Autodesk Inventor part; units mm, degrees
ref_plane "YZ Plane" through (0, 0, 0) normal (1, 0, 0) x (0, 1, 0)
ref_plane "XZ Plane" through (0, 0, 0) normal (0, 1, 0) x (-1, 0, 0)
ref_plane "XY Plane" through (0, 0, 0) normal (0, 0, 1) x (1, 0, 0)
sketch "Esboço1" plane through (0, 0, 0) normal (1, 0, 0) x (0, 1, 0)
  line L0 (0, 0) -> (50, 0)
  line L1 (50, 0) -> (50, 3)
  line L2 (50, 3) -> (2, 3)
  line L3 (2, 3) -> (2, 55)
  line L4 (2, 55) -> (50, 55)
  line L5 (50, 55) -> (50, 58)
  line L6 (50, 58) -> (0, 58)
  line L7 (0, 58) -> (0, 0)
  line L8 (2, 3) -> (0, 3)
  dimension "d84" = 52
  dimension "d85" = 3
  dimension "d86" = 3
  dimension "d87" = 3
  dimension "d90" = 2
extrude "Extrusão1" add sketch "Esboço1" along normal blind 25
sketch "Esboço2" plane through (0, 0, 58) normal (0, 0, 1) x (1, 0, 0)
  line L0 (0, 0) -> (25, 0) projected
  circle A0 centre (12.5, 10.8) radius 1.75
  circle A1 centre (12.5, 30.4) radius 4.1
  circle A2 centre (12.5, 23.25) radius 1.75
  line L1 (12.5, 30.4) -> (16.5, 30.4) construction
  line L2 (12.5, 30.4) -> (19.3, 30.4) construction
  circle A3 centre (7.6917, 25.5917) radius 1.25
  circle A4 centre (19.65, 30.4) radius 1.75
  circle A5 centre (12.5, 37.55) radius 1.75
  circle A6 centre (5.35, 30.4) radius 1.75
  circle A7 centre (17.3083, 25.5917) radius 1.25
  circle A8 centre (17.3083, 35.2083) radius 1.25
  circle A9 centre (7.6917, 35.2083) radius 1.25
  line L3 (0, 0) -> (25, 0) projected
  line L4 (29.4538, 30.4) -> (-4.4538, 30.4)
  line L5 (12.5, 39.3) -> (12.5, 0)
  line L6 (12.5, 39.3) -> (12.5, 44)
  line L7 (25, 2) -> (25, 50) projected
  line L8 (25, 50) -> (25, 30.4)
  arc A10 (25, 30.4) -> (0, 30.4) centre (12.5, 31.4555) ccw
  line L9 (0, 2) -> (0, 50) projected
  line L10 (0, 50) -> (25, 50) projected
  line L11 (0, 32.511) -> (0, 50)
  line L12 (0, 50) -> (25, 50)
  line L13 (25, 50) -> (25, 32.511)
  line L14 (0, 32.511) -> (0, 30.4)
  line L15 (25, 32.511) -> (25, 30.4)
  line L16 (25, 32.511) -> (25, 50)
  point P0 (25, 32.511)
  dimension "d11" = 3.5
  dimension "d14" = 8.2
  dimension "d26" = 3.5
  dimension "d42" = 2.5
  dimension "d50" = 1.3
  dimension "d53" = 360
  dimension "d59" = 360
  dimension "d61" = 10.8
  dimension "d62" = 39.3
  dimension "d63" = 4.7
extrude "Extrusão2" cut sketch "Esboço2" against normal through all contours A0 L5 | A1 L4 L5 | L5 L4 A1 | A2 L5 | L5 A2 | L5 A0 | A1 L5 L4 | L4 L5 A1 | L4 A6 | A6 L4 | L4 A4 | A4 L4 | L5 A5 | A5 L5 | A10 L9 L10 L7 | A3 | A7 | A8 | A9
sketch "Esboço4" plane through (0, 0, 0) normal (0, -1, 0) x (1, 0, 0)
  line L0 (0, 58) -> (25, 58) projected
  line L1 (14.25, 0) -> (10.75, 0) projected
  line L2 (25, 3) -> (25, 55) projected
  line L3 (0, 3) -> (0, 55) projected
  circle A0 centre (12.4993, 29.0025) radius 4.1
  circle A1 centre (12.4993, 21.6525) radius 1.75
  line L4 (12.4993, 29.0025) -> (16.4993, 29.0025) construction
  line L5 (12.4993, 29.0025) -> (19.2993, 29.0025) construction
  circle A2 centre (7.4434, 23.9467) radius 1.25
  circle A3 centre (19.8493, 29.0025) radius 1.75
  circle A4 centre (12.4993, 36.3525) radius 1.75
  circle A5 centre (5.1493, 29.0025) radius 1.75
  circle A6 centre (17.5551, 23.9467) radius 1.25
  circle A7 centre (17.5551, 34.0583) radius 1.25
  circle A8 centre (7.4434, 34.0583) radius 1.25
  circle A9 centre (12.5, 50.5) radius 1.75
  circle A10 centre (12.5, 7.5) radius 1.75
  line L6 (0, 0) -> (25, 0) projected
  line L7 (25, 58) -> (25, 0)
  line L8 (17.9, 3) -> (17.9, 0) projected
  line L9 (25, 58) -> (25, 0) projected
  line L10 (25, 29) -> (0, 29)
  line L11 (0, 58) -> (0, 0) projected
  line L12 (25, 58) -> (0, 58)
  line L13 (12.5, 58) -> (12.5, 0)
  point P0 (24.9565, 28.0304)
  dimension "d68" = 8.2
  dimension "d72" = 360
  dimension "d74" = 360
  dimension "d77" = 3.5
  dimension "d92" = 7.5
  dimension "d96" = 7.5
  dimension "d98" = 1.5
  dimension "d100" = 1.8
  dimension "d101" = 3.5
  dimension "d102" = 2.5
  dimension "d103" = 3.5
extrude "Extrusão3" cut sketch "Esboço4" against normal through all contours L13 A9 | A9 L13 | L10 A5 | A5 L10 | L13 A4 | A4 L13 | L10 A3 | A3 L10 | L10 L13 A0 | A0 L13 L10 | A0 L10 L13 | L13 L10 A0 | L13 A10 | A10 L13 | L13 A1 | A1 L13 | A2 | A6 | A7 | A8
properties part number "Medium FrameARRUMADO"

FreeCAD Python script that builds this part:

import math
import FreeCAD as App
import Part
import Sketcher

V = App.Vector
Q = App.Units.Quantity


def add_polygon(sketch, points):
    """Adds a closed chain of lines whose ends are joined by coincident constraints."""
    first, n = sketch.GeometryCount, len(points)
    for a, b in zip(points, points[1:] + points[:1]):
        sketch.addGeometry(Part.LineSegment(App.Vector(*a, 0), App.Vector(*b, 0)), False)
    for i in range(n):
        sketch.addConstraint(Sketcher.Constraint("Coincident", first + i, 2, first + (i + 1) % n, 1))

doc = App.newDocument("Part")
body = doc.addObject("PartDesign::Body", "Body")

sketch1 = body.newObject("Sketcher::SketchObject", "Sketch")
sketch1.AttachmentSupport = (doc.getObject("YZ_Plane"), [""])
sketch1.MapMode = "FlatFace"
add_polygon(sketch1, [(0, 0), (50, 0), (50, 3), (2, 3), (2, 55), (50, 55), (50, 58), (0, 58)])
sketch1.addConstraint([
    Sketcher.Constraint("Horizontal", 0),
    Sketcher.Constraint("Vertical", 1),
    Sketcher.Constraint("Horizontal", 2),
    Sketcher.Constraint("Vertical", 3),
    Sketcher.Constraint("Horizontal", 4),
    Sketcher.Constraint("Vertical", 5),
    Sketcher.Constraint("Horizontal", 6),
    Sketcher.Constraint("Vertical", 7),
    Sketcher.Constraint("Coincident", 7, 2, -1, 1),
    Sketcher.Constraint("Vertical", 1, 2, 4, 2),
    Sketcher.Constraint("Equal", 1, 5),
    Sketcher.Constraint("DistanceY", 1, 1, 1, 2, Q("3 mm")),
    Sketcher.Constraint("DistanceY", 3, 1, 3, 2, Q("52 mm")),
    Sketcher.Constraint("DistanceX", -1, 1, 2, 2, Q("2 mm")),
    Sketcher.Constraint("DistanceX", 0, 1, 0, 2, Q("50 mm")),
])
pad1 = body.newObject("PartDesign::Pad", "Pad")
pad1.Profile = sketch1
pad1.Length = 25

sketch2 = body.newObject("Sketcher::SketchObject", "Sketch001")
sketch2.AttachmentSupport = (doc.getObject("XY_Plane"), [""])
sketch2.MapMode = "FlatFace"
sketch2.AttachmentOffset = App.Placement(V(0, 0, 58), App.Rotation())
sketch2.addGeometry([
    Part.Circle(V(12.5, 10.8, 0), V(0, 0, 1), 1.8),
    Part.Circle(V(12.5, 30.4, 0), V(0, 0, 1), 4.1),
    Part.Circle(V(12.5, 23.2, 0), V(0, 0, 1), 1.8),
    Part.Circle(V(5.3, 30.4, 0), V(0, 0, 1), 1.8),
    Part.Circle(V(19.6, 30.4, 0), V(0, 0, 1), 1.8),
    Part.Circle(V(12.5, 37.5, 0), V(0, 0, 1), 1.8),
    Part.ArcOfCircle(Part.Circle(V(12.5, 31.5, 0), V(0, 0, 1), 12.5), math.radians(5), math.radians(175)),
    Part.LineSegment(V(25, 32.5, 0), V(25, 50, 0)),
    Part.LineSegment(V(25, 50, 0), V(0, 50, 0)),
    Part.LineSegment(V(0, 50, 0), V(0, 32.5, 0)),
    Part.Circle(V(7.7, 25.6, 0), V(0, 0, 1), 1.2),
    Part.Circle(V(17.3, 25.6, 0), V(0, 0, 1), 1.2),
    Part.Circle(V(17.3, 35.2, 0), V(0, 0, 1), 1.2),
    Part.Circle(V(7.7, 35.2, 0), V(0, 0, 1), 1.2),
], False)
sketch2.addConstraint([
    Sketcher.Constraint("Coincident", 6, 1, 7, 1),
    Sketcher.Constraint("Coincident", 7, 2, 8, 1),
    Sketcher.Constraint("Coincident", 8, 2, 9, 1),
    Sketcher.Constraint("Coincident", 9, 2, 6, 2),
    Sketcher.Constraint("Vertical", 7),
    Sketcher.Constraint("Horizontal", 8),
    Sketcher.Constraint("Vertical", 9),
    Sketcher.Constraint("Equal", 0, 2),
    Sketcher.Constraint("Equal", 2, 3),
    Sketcher.Constraint("Equal", 3, 4),
    Sketcher.Constraint("Equal", 4, 5),
    Sketcher.Constraint("Equal", 10, 11),
    Sketcher.Constraint("Equal", 11, 12),
    Sketcher.Constraint("Equal", 12, 13),
    Sketcher.Constraint("PointOnObject", 8, 2, -2),
    Sketcher.Constraint("Horizontal", 1, 3, 3, 3),
    Sketcher.Constraint("Horizontal", 3, 3, 4, 3),
    Sketcher.Constraint("Horizontal", 10, 3, 11, 3),
    Sketcher.Constraint("Horizontal", 12, 3, 13, 3),
    Sketcher.Constraint("Horizontal", 6, 1, 9, 2),
    Sketcher.Constraint("Vertical", 0, 3, 1, 3),
    Sketcher.Constraint("Vertical", 1, 3, 2, 3),
    Sketcher.Constraint("Vertical", 2, 3, 5, 3),
    Sketcher.Constraint("Vertical", 5, 3, 6, 3),
    Sketcher.Constraint("Vertical", 11, 3, 12, 3),
    Sketcher.Constraint("Vertical", 10, 3, 13, 3),
    Sketcher.Constraint("Diameter", 0, Q("3.5 mm")),
    Sketcher.Constraint("Diameter", 1, Q("8.2 mm")),
    Sketcher.Constraint("Diameter", 10, Q("2.5 mm")),
    Sketcher.Constraint("DistanceY", -1, 1, 0, 3, Q("10.8 mm")),
    Sketcher.Constraint("DistanceX", 8, 2, 8, 1, Q("25 mm")),
    Sketcher.Constraint("DistanceY", -1, 1, 7, 2, Q("50 mm")),
    Sketcher.Constraint("DistanceY", -1, 1, 1, 3, Q("30.4 mm")),
    Sketcher.Constraint("Radius", 6, Q("12.5445 mm")),
    Sketcher.Constraint("DistanceX", 3, 3, 4, 3, Q("14.3 mm")),
    Sketcher.Constraint("DistanceY", 2, 3, 5, 3, Q("14.3 mm")),
    Sketcher.Constraint("DistanceY", 7, 1, 7, 2, Q("17.489 mm")),
    Sketcher.Constraint("DistanceY", -1, 1, 2, 3, Q("23.25 mm")),
    Sketcher.Constraint("DistanceX", -1, 1, 3, 3, Q("5.35 mm")),
    Sketcher.Constraint("DistanceX", -1, 1, 10, 3, Q("7.6917 mm")),
    Sketcher.Constraint("DistanceY", -1, 1, 10, 3, Q("25.5917 mm")),
    Sketcher.Constraint("DistanceX", -1, 1, 11, 3, Q("17.3083 mm")),
    Sketcher.Constraint("DistanceY", -1, 1, 12, 3, Q("35.2083 mm")),
])
pocket1 = body.newObject("PartDesign::Pocket", "Pocket")
pocket1.Profile = sketch2
pocket1.Type = "ThroughAll"

sketch3 = body.newObject("Sketcher::SketchObject", "Sketch002")
sketch3.AttachmentSupport = (doc.getObject("XZ_Plane"), [""])
sketch3.MapMode = "FlatFace"
sketch3.addGeometry([
    Part.Circle(V(12.5, 50.5, 0), V(0, 0, 1), 1.8),
    Part.Circle(V(5.1, 29, 0), V(0, 0, 1), 1.8),
    Part.Circle(V(12.5, 36.4, 0), V(0, 0, 1), 1.8),
    Part.Circle(V(19.8, 29, 0), V(0, 0, 1), 1.8),
    Part.Circle(V(12.5, 29, 0), V(0, 0, 1), 4.1),
    Part.Circle(V(12.5, 7.5, 0), V(0, 0, 1), 1.8),
    Part.Circle(V(12.5, 21.7, 0), V(0, 0, 1), 1.8),
    Part.Circle(V(7.4, 23.9, 0), V(0, 0, 1), 1.2),
    Part.Circle(V(17.6, 23.9, 0), V(0, 0, 1), 1.2),
    Part.Circle(V(17.6, 34.1, 0), V(0, 0, 1), 1.2),
    Part.Circle(V(7.4, 34.1, 0), V(0, 0, 1), 1.2),
], False)
sketch3.addConstraint([
    Sketcher.Constraint("Equal", 0, 1),
    Sketcher.Constraint("Equal", 1, 2),
    Sketcher.Constraint("Equal", 2, 3),
    Sketcher.Constraint("Equal", 3, 5),
    Sketcher.Constraint("Equal", 5, 6),
    Sketcher.Constraint("Equal", 7, 8),
    Sketcher.Constraint("Equal", 8, 9),
    Sketcher.Constraint("Equal", 9, 10),
    Sketcher.Constraint("Horizontal", 1, 3, 3, 3),
    Sketcher.Constraint("Horizontal", 3, 3, 4, 3),
    Sketcher.Constraint("Horizontal", 7, 3, 8, 3),
    Sketcher.Constraint("Horizontal", 9, 3, 10, 3),
    Sketcher.Constraint("Vertical", 2, 3, 4, 3),
    Sketcher.Constraint("Vertical", 0, 3, 5, 3),
    Sketcher.Constraint("Vertical", 4, 3, 6, 3),
    Sketcher.Constraint("Vertical", 8, 3, 9, 3),
    Sketcher.Constraint("Vertical", 7, 3, 10, 3),
    Sketcher.Constraint("Diameter", 0, Q("3.5 mm")),
    Sketcher.Constraint("Diameter", 4, Q("8.2 mm")),
    Sketcher.Constraint("Diameter", 7, Q("2.5 mm")),
    Sketcher.Constraint("DistanceY", -1, 1, 5, 3, Q("7.5 mm")),
    Sketcher.Constraint("DistanceY", 5, 3, 0, 3, Q("43 mm")),
    Sketcher.Constraint("DistanceX", -1, 1, 0, 3, Q("12.5 mm")),
    Sketcher.Constraint("DistanceX", 1, 3, 3, 3, Q("14.7 mm")),
    Sketcher.Constraint("DistanceY", 6, 3, 2, 3, Q("14.7 mm")),
    Sketcher.Constraint("DistanceX", 1, 3, 2, 3, Q("7.35 mm")),
    Sketcher.Constraint("DistanceY", 1, 3, 2, 3, Q("7.35 mm")),
    Sketcher.Constraint("DistanceX", -1, 1, 8, 3, Q("17.555 mm")),
    Sketcher.Constraint("DistanceX", 1, 3, 7, 3, Q("2.294 mm")),
    Sketcher.Constraint("DistanceX", -1, 1, 1, 3, Q("5.1493 mm")),
    Sketcher.Constraint("DistanceY", -1, 1, 1, 3, Q("29.0025 mm")),
    Sketcher.Constraint("DistanceY", -1, 1, 7, 3, Q("23.9467 mm")),
    Sketcher.Constraint("DistanceY", -1, 1, 9, 3, Q("34.0583 mm")),
])
pocket2 = body.newObject("PartDesign::Pocket", "Pocket001")
pocket2.Profile = sketch3
pocket2.Type = "ThroughAll"

doc.recompute()
